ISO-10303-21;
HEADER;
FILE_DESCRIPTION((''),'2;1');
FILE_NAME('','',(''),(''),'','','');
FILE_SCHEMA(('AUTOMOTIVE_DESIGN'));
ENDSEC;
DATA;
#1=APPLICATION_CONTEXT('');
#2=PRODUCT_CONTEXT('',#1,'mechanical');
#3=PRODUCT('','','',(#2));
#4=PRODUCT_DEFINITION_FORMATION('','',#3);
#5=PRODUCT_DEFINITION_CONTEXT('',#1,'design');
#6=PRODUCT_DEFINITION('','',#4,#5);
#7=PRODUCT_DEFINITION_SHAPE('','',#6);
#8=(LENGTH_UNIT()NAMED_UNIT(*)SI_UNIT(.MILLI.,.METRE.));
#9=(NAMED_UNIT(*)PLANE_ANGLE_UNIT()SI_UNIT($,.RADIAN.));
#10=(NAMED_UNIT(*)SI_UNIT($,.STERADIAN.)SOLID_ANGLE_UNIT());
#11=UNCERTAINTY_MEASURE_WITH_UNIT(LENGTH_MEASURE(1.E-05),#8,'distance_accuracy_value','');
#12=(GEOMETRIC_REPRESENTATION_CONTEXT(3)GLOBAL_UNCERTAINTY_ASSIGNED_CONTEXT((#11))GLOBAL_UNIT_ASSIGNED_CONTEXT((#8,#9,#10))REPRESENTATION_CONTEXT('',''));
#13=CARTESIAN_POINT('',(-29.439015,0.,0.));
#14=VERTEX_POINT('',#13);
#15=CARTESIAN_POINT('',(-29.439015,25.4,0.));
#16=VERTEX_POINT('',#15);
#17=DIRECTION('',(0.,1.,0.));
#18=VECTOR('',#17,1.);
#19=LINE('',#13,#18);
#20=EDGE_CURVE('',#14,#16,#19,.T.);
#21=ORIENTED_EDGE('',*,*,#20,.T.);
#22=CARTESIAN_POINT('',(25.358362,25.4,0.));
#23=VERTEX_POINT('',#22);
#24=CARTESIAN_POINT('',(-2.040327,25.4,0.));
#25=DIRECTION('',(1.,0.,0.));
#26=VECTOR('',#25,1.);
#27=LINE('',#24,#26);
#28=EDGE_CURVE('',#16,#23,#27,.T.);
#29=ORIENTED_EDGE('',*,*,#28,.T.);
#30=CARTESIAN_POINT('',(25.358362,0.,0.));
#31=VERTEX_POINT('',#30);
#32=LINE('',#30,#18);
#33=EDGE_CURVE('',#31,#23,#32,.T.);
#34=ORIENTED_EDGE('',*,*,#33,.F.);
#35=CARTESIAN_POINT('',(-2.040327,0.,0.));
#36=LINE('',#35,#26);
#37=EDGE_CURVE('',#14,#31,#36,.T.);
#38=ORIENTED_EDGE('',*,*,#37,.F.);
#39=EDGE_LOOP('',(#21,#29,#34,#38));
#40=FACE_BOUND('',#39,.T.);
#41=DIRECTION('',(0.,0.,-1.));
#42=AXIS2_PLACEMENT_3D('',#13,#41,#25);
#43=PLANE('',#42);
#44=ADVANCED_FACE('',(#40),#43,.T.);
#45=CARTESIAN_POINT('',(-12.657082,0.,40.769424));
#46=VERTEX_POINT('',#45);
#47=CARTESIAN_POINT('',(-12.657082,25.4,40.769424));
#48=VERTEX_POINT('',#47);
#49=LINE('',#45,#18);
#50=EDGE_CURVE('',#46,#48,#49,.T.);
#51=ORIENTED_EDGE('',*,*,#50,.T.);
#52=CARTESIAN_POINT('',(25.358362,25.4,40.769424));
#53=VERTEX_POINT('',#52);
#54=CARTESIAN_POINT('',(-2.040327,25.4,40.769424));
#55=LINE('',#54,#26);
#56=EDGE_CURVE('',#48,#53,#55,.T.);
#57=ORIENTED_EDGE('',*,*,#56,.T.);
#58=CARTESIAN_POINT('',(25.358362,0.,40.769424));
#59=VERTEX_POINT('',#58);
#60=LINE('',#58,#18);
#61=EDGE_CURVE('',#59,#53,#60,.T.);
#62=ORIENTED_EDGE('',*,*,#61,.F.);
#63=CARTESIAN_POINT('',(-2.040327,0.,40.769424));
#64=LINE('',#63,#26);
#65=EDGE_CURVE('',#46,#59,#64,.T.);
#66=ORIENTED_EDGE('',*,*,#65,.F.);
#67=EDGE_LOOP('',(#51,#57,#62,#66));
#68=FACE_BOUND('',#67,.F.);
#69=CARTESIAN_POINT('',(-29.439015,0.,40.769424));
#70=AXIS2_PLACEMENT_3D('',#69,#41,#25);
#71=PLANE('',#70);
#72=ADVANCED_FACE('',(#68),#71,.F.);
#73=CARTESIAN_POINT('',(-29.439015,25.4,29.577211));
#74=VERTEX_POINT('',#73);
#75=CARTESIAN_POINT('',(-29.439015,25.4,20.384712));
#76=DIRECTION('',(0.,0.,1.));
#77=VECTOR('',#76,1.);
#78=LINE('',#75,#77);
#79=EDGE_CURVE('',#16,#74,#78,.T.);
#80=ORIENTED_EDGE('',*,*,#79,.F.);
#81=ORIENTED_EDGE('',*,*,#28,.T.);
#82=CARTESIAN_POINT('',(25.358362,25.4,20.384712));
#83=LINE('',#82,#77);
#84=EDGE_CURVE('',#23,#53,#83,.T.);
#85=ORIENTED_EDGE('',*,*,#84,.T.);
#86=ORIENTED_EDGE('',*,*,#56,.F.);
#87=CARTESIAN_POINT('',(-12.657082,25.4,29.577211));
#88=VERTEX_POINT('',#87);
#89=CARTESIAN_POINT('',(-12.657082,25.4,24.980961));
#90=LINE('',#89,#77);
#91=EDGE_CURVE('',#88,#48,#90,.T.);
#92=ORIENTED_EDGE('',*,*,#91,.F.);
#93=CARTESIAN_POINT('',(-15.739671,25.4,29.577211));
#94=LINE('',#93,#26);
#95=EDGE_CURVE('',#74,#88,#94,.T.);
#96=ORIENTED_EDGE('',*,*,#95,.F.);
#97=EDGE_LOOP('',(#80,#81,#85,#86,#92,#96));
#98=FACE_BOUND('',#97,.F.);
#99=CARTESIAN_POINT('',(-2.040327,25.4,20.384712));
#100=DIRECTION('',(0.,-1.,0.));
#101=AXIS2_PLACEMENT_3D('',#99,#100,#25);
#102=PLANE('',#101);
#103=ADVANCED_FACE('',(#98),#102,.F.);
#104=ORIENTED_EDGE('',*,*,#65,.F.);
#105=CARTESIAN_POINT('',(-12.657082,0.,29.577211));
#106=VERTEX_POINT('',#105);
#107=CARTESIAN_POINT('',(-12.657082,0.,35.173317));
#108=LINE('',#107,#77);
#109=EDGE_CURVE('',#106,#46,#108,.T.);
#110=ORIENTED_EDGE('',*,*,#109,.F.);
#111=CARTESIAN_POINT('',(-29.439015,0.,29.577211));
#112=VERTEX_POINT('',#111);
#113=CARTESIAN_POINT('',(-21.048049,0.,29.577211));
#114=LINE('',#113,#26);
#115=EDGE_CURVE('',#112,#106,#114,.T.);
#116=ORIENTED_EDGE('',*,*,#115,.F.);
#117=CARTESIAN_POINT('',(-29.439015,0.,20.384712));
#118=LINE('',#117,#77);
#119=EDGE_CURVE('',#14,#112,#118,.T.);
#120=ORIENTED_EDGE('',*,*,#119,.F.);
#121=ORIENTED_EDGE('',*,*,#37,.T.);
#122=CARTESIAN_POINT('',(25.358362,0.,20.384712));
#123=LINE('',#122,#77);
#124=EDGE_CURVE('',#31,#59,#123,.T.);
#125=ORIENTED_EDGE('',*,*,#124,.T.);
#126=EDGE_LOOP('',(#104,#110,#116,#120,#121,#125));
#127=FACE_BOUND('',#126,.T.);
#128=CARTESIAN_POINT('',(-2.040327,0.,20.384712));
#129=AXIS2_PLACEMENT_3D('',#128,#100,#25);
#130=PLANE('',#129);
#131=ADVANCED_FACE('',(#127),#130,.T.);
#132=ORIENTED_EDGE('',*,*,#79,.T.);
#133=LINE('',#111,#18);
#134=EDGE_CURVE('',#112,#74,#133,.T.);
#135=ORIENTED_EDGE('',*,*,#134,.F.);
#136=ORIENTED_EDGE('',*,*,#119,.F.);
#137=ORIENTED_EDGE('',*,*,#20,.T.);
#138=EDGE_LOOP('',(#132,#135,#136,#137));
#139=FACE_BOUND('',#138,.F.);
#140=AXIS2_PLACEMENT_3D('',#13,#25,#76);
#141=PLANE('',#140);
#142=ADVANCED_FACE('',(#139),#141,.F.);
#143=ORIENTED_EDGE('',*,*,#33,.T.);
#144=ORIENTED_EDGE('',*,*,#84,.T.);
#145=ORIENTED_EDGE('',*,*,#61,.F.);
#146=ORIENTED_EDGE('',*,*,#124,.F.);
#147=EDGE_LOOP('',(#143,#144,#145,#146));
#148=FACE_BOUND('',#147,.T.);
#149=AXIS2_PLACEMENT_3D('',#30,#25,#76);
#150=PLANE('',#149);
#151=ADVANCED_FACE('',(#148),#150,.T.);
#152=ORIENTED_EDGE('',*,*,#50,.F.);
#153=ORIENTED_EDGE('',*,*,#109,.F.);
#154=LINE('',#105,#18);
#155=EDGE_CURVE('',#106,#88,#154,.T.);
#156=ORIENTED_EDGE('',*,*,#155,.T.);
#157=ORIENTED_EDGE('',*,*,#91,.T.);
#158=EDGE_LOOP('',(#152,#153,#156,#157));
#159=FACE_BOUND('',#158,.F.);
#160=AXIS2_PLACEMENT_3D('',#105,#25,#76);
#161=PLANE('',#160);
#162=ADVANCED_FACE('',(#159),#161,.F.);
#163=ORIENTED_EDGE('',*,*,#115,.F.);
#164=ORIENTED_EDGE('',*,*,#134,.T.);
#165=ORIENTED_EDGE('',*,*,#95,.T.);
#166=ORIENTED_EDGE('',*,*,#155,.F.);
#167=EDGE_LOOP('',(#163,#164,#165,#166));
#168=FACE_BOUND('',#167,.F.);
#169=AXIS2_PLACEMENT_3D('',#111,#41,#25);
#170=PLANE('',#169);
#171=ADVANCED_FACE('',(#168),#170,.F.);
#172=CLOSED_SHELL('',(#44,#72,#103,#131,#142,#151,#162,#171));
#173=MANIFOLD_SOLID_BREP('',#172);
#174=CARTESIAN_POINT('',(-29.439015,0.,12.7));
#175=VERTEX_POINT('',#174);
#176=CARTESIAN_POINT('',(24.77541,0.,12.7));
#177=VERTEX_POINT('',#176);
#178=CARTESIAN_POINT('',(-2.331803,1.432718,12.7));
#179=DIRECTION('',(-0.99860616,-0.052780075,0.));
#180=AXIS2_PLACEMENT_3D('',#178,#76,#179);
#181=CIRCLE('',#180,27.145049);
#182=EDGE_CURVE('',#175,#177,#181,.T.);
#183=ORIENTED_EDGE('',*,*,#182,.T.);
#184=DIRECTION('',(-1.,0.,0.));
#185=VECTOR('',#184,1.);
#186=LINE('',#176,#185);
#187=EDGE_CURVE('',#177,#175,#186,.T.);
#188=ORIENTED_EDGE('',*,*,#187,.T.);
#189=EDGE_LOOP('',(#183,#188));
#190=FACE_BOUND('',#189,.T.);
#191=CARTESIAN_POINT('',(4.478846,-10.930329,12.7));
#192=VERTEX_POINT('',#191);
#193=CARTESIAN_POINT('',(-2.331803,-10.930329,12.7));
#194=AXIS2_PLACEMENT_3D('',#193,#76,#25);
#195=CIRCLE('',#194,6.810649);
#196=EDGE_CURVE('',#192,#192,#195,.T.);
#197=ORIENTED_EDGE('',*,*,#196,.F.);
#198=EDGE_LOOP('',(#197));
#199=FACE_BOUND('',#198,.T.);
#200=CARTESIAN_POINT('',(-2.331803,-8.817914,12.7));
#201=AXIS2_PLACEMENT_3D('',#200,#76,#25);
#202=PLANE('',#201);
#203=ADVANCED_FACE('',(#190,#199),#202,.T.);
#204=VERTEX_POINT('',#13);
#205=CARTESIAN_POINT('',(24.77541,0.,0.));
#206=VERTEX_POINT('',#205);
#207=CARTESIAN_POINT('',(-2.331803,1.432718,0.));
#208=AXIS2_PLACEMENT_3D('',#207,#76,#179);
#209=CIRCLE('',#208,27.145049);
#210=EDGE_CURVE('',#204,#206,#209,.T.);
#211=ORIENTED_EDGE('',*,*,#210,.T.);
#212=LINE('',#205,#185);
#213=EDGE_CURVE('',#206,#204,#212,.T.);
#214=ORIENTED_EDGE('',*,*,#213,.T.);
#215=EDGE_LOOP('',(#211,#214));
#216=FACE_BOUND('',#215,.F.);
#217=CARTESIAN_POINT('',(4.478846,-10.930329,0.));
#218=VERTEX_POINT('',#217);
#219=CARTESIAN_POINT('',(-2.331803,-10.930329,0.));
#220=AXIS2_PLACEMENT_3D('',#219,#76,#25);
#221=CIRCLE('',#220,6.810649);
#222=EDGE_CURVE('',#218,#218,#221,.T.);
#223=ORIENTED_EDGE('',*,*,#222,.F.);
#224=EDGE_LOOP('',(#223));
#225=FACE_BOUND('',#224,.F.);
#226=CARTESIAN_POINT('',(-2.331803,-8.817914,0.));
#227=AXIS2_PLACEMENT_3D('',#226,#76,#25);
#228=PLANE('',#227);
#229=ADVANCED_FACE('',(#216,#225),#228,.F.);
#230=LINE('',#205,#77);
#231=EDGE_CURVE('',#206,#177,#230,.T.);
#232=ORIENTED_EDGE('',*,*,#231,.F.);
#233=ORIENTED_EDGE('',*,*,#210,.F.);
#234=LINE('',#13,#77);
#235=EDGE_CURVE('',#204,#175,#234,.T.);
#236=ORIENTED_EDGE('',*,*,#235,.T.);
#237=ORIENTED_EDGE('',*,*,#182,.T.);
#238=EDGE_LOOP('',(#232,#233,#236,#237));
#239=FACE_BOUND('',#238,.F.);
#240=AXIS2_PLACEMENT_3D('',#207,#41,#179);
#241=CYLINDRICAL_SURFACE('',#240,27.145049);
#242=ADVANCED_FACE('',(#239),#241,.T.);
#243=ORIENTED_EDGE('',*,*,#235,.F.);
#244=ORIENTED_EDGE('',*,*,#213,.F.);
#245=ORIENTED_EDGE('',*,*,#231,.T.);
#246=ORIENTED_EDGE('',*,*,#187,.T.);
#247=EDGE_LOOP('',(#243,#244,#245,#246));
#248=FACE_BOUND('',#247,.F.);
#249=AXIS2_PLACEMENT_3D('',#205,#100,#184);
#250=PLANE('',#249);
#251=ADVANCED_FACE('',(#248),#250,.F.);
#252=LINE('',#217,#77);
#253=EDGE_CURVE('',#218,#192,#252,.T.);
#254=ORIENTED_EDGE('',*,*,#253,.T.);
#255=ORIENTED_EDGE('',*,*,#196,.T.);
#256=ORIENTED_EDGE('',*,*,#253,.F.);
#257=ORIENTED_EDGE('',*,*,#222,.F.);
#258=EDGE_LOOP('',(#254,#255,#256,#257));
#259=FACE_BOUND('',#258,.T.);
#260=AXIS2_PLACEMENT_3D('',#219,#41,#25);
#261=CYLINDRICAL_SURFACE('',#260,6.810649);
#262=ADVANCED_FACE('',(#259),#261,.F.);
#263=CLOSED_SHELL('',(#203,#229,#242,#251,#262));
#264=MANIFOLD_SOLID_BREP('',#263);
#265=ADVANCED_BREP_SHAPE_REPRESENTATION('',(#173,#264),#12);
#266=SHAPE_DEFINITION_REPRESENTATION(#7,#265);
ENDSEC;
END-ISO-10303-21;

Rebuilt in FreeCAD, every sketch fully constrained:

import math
import FreeCAD as App
import Part
import Sketcher

V = App.Vector

doc = App.newDocument("Part")
params = doc.addObject("Spreadsheet::Sheet", "Params")
for row, (alias, value) in enumerate([
    ("pad1_length", "0.5 in"),
    ("pad2_length", "1 in"),
], start=1):
    params.set(f"A{row}", alias)
    params.set(f"B{row}", "=" + value)
    params.setAlias(f"B{row}", alias)

body = doc.addObject("PartDesign::Body", "Body")

sketch1 = body.newObject("Sketcher::SketchObject", "Sketch")
sketch1.AttachmentSupport = (doc.getObject("XY_Plane"), [""])
sketch1.MapMode = "FlatFace"
sketch1.addGeometry([
    Part.LineSegment(V(24.77541, 0, 0), V(-29.439015, 0, 0)),
    Part.ArcOfCircle(Part.Circle(V(-2.331803, 1.432718, 0), V(0, 0, 1), 27.145049), math.radians(-176.974519), math.radians(-3.025481)),
    Part.Circle(V(-2.331803, -10.930329, 0), V(0, 0, 1), 6.810649),
], False)
sketch1.addConstraint([
    Sketcher.Constraint("Coincident", 0, 1, 1, 2),
    Sketcher.Constraint("Coincident", 1, 1, 0, 2),
    Sketcher.Constraint("Horizontal", 0),
    Sketcher.Constraint("PointOnObject", 0, 1, -1),
    Sketcher.Constraint("Vertical", 1, 3, 2, 3),
    Sketcher.Constraint("Radius", 1, 27.145049),
    Sketcher.Constraint("Diameter", 2, 13.621297),
    Sketcher.Constraint("DistanceX", 0, 2, 0, 1, 54.214425),
    Sketcher.Constraint("DistanceY", 2, 3, -1, 1, 10.930329),
    Sketcher.Constraint("DistanceX", -1, 1, 0, 1, 24.77541),
])
pad1 = body.newObject("PartDesign::Pad", "Pad")
pad1.Profile = sketch1
pad1.setExpression("Length", "Params.pad1_length")
body2 = doc.addObject("PartDesign::Body", "Body001")

sketch2 = body2.newObject("Sketcher::SketchObject", "Sketch001")
sketch2.AttachmentSupport = (doc.getObject("XZ_Plane001"), [""])
sketch2.MapMode = "FlatFace"
sketch2.addGeometry([
    Part.LineSegment(V(-29.439015, 40.769424, 0), V(-29.439015, 0, 0)),
    Part.LineSegment(V(-29.439015, 0, 0), V(25.358362, 0, 0)),
    Part.LineSegment(V(25.358362, 0, 0), V(25.358362, 40.769424, 0)),
    Part.LineSegment(V(25.358362, 40.769424, 0), V(-29.439015, 40.769424, 0)),
], False)
sketch2.addConstraint([
    Sketcher.Constraint("Coincident", 0, 2, 1, 1),
    Sketcher.Constraint("Coincident", 1, 2, 2, 1),
    Sketcher.Constraint("Coincident", 2, 2, 3, 1),
    Sketcher.Constraint("Coincident", 3, 2, 0, 1),
    Sketcher.Constraint("Vertical", 0),
    Sketcher.Constraint("Horizontal", 1),
    Sketcher.Constraint("Vertical", 2),
    Sketcher.Constraint("Horizontal", 3),
    Sketcher.Constraint("PointOnObject", 0, 2, -1),
    Sketcher.Constraint("DistanceX", 1, 1, 1, 2, 54.797377),
    Sketcher.Constraint("DistanceY", 0, 2, 0, 1, 40.769424),
    Sketcher.Constraint("DistanceX", 0, 2, -1, 1, 29.439015),
])
pad2 = body2.newObject("PartDesign::Pad", "Pad001")
pad2.Profile = sketch2
pad2.setExpression("Length", "Params.pad2_length")
pad2.Reversed = True

sketch3 = body2.newObject("Sketcher::SketchObject", "Sketch002")
sketch3.AttachmentSupport = (doc.getObject("XZ_Plane001"), [""])
sketch3.MapMode = "FlatFace"
sketch3.addGeometry([
    Part.LineSegment(V(-29.439015, 40.769424, 0), V(-29.439015, 29.577211, 0)),
    Part.LineSegment(V(-29.439015, 29.577211, 0), V(-12.657082, 29.577211, 0)),
    Part.LineSegment(V(-12.657082, 29.577211, 0), V(-12.657082, 40.769424, 0)),
    Part.LineSegment(V(-12.657082, 40.769424, 0), V(-29.439015, 40.769424, 0)),
], False)
sketch3.addConstraint([
    Sketcher.Constraint("Coincident", 0, 2, 1, 1),
    Sketcher.Constraint("Coincident", 1, 2, 2, 1),
    Sketcher.Constraint("Coincident", 2, 2, 3, 1),
    Sketcher.Constraint("Coincident", 3, 2, 0, 1),
    Sketcher.Constraint("Vertical", 0),
    Sketcher.Constraint("Horizontal", 1),
    Sketcher.Constraint("Vertical", 2),
    Sketcher.Constraint("Horizontal", 3),
    Sketcher.Constraint("DistanceX", 1, 1, 1, 2, 16.781934),
    Sketcher.Constraint("DistanceY", 0, 2, 0, 1, 11.192214),
    Sketcher.Constraint("DistanceY", -1, 1, 0, 2, 29.577211),
    Sketcher.Constraint("DistanceX", 1, 2, -1, 1, 12.657082),
])
pocket1 = body2.newObject("PartDesign::Pocket", "Pocket")
pocket1.Profile = sketch3
pocket1.Type = "ThroughAll"

doc.recompute()
